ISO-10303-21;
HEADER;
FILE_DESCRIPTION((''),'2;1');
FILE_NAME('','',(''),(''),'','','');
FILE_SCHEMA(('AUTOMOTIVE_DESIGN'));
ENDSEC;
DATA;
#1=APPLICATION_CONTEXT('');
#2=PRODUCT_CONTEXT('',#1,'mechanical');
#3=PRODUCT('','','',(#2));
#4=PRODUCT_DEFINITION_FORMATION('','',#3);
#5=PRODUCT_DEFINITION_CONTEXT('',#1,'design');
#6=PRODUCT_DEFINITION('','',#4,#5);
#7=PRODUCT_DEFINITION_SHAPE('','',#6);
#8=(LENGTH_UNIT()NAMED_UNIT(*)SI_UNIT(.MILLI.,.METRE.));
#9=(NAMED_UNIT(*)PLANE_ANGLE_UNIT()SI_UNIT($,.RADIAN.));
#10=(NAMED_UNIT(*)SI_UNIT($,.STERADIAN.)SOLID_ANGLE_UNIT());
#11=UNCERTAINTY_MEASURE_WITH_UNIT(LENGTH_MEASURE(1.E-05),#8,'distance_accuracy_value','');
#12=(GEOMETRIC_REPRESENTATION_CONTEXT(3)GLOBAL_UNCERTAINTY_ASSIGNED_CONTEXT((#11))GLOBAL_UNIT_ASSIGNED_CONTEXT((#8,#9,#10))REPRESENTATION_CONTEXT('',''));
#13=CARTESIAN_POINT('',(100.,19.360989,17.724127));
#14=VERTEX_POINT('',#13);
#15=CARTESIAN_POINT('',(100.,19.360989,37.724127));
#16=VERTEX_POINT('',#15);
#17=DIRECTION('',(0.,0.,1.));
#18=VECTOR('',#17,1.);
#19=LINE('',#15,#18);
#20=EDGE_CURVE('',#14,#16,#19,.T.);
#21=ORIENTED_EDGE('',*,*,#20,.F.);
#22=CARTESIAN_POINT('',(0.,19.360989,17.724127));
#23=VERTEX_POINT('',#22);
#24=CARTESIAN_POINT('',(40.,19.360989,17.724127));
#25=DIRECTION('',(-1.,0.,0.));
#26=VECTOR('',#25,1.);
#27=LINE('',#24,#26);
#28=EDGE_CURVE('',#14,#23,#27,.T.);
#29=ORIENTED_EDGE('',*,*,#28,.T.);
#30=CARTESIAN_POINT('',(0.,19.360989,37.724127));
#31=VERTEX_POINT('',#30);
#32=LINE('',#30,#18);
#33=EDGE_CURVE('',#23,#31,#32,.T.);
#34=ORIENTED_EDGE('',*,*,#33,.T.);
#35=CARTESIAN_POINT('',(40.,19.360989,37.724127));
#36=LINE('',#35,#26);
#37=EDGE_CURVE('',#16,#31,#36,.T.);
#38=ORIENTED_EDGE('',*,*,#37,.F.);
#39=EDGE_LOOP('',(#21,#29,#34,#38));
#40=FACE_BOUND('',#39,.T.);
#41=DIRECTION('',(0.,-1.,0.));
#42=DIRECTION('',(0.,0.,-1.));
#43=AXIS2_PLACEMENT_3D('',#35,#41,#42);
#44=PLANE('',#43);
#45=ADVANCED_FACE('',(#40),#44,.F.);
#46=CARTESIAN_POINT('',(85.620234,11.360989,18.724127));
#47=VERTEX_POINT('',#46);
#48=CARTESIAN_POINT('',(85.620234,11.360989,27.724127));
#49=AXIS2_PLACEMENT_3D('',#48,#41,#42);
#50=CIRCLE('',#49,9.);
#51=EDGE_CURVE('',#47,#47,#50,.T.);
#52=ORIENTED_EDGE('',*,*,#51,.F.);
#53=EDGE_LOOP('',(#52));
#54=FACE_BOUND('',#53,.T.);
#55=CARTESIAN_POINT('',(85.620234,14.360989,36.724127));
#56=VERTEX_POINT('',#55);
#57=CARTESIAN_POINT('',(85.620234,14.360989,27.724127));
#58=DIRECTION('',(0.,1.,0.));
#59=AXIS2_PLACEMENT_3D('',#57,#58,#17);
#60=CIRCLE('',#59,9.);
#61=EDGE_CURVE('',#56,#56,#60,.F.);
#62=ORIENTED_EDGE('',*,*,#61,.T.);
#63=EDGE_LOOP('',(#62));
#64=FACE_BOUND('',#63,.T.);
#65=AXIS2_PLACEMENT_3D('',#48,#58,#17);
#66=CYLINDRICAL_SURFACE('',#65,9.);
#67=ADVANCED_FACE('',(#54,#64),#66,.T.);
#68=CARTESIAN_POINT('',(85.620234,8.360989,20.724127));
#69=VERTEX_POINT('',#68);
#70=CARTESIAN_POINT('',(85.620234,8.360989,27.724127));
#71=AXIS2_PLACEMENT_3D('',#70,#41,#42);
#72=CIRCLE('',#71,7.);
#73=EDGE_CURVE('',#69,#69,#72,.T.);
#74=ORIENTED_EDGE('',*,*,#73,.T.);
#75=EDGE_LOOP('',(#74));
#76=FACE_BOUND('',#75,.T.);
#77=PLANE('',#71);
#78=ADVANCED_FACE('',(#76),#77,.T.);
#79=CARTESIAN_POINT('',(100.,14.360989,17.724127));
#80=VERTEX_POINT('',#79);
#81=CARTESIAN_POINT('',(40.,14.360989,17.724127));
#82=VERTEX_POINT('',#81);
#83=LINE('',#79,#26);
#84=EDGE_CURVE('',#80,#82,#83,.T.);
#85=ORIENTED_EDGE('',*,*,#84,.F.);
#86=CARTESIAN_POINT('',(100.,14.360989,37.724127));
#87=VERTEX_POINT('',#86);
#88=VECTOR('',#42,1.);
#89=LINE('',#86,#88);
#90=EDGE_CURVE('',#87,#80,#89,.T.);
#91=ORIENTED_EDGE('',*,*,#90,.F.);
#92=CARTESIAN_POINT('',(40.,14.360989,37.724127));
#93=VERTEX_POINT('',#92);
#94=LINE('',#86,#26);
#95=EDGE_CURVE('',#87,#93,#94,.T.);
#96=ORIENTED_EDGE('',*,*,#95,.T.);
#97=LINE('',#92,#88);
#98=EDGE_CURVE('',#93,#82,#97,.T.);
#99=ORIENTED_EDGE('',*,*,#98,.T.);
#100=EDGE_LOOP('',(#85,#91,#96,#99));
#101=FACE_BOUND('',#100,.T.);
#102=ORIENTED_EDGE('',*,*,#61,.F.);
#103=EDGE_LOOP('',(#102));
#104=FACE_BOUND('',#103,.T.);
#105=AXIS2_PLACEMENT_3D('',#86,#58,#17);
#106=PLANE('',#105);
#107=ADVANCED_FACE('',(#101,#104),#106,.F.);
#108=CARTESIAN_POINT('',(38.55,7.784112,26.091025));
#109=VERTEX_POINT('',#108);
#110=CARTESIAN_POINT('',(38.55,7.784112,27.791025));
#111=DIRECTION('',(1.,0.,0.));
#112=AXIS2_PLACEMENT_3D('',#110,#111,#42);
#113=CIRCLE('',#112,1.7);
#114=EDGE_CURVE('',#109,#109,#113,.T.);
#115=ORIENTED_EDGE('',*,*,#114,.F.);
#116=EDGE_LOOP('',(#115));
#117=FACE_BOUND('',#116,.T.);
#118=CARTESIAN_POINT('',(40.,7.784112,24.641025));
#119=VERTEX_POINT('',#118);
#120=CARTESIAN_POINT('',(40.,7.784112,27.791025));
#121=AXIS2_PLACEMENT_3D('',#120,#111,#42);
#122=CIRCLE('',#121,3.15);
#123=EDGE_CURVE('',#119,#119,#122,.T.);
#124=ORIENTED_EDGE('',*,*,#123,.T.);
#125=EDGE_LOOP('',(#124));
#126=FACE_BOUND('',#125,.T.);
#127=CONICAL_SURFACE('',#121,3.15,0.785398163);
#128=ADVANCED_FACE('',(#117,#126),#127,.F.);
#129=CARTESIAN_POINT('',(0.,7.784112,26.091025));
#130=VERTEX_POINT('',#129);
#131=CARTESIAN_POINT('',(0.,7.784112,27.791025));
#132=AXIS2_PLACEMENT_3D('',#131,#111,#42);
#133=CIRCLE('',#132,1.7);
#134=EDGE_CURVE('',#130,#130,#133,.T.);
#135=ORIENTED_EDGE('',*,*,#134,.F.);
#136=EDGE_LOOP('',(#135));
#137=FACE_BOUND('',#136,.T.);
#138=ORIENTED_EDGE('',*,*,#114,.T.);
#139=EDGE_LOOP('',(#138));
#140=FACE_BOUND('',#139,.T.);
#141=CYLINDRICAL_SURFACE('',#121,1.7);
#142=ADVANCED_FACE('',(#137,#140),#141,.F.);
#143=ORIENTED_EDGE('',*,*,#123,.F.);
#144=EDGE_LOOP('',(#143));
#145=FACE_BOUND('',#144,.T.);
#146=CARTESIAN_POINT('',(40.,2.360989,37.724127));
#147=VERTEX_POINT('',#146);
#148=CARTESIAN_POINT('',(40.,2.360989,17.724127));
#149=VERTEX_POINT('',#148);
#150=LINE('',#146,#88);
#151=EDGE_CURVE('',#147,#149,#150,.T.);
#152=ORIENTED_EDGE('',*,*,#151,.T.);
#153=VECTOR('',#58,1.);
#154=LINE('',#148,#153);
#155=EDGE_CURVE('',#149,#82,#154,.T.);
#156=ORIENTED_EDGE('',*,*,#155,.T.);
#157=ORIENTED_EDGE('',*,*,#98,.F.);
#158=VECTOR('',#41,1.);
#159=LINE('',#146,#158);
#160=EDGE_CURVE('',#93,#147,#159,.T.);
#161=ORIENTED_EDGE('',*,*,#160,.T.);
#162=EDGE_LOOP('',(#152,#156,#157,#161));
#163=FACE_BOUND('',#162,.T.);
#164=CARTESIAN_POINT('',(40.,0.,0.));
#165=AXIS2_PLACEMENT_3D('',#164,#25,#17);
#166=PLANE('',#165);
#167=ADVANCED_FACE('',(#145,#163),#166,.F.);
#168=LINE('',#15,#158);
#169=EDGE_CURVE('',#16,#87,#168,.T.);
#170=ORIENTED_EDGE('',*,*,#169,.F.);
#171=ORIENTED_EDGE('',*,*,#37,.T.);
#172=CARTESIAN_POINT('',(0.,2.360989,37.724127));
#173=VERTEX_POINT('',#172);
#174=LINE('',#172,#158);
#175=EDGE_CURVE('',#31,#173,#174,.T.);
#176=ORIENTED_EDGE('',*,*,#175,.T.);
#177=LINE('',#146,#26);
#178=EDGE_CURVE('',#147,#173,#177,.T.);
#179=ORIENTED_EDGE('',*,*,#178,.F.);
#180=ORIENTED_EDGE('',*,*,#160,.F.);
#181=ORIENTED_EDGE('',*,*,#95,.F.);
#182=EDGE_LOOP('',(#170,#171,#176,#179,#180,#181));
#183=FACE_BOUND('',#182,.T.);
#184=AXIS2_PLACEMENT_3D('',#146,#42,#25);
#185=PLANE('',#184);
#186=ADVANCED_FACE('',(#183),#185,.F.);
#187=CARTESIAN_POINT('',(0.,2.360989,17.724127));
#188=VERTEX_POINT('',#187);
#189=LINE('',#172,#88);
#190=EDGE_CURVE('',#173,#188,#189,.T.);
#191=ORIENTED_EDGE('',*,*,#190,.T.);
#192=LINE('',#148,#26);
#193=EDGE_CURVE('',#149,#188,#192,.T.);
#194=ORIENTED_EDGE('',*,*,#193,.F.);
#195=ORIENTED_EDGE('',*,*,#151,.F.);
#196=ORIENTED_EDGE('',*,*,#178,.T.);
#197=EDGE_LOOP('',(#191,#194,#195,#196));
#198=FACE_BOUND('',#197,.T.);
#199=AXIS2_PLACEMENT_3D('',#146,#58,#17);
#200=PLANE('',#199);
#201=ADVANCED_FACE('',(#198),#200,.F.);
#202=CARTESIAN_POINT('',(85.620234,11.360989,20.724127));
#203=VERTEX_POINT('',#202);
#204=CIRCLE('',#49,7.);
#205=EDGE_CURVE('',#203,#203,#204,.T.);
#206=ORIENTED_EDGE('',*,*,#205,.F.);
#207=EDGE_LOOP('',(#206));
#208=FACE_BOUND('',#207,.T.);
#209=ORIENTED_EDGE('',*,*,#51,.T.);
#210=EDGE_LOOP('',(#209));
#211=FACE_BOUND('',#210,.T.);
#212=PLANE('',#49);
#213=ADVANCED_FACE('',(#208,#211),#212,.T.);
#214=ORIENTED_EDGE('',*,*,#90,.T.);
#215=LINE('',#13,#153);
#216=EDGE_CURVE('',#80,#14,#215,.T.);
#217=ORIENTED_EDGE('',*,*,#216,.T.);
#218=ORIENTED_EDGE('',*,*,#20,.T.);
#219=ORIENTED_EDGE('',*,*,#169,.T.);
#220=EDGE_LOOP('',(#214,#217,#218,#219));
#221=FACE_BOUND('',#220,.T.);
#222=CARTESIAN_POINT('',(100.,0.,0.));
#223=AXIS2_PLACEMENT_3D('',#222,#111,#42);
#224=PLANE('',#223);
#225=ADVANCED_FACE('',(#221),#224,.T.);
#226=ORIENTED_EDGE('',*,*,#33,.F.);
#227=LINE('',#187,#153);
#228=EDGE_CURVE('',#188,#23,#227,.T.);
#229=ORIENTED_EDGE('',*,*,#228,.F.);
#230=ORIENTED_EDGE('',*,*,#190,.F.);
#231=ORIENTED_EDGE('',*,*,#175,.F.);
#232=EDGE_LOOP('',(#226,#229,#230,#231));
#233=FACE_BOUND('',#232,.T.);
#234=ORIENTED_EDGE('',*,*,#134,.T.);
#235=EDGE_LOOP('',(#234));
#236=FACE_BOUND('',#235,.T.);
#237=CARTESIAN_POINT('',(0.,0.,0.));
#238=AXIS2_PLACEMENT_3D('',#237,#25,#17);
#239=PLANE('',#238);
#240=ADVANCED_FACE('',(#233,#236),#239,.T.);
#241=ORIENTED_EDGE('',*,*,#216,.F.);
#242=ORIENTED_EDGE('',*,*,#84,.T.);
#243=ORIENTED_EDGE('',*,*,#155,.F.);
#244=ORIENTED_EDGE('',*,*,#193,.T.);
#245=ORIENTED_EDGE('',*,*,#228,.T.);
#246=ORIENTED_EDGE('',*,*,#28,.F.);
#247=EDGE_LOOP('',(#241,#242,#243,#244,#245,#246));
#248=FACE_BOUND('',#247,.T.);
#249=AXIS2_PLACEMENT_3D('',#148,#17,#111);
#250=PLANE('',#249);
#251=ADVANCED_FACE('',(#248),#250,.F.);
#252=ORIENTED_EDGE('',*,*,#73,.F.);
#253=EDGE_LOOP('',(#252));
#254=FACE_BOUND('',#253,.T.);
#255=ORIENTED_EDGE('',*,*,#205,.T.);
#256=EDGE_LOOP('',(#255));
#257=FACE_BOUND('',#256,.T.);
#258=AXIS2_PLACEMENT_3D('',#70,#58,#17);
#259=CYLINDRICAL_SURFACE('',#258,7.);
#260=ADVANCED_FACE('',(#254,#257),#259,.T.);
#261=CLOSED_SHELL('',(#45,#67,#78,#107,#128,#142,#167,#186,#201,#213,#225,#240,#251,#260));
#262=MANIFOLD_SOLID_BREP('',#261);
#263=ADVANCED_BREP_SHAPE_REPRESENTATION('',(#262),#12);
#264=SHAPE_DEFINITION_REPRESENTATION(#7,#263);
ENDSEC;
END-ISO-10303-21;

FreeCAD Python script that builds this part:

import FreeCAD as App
import Part
import Sketcher
from FreeCAD import Vector
Q = App.Units.Quantity

doc = App.newDocument("Part")
body = doc.addObject("PartDesign::Body", "Body")

# Sketch on YZ plane
sketch1 = body.newObject("Sketcher::SketchObject", "Sketch")
sketch1.AttachmentSupport = (doc.getObject("YZ_Plane"), [""])
sketch1.MapMode = "FlatFace"
sketch1.addGeometry([
    Part.LineSegment(Vector(19, 38, 0), Vector(2, 38, 0)),
    Part.LineSegment(Vector(2, 38, 0), Vector(2, 18, 0)),
    Part.LineSegment(Vector(2, 18, 0), Vector(19, 18, 0)),
    Part.LineSegment(Vector(19, 18, 0), Vector(19, 38, 0)),
], False)
sketch1.addConstraint([
    Sketcher.Constraint("Coincident", 0, 2, 1, 1),
    Sketcher.Constraint("Coincident", 1, 2, 2, 1),
    Sketcher.Constraint("Coincident", 2, 2, 3, 1),
    Sketcher.Constraint("Coincident", 3, 2, 0, 1),
    Sketcher.Constraint("Horizontal", 0),
    Sketcher.Constraint("Vertical", 1),
    Sketcher.Constraint("Horizontal", 2),
    Sketcher.Constraint("Vertical", 3),
    Sketcher.Constraint("DistanceX", 0, 2, 0, 1, Q("17 mm")),
    Sketcher.Constraint("DistanceY", 1, 2, 1, 1, Q("20 mm")),
    Sketcher.Constraint("DistanceX", -1, 1, 0, 2, Q("2.360989 mm")),
    Sketcher.Constraint("DistanceY", -1, 1, 0, 2, Q("37.724127 mm")),
])
pad1 = body.newObject("PartDesign::Pad", "Pad")
pad1.Profile = sketch1
pad1.Length = 40

# Sketch on YZ plane
sketch2 = body.newObject("Sketcher::SketchObject", "Sketch001")
sketch2.AttachmentSupport = (doc.getObject("YZ_Plane"), [""])
sketch2.MapMode = "FlatFace"
sketch2.AttachmentOffset = App.Placement(Vector(0, 0, 40), App.Rotation())
sketch2.addGeometry([
    Part.LineSegment(Vector(19, 38, 0), Vector(14, 38, 0)),
    Part.LineSegment(Vector(14, 38, 0), Vector(14, 18, 0)),
    Part.LineSegment(Vector(14, 18, 0), Vector(19, 18, 0)),
    Part.LineSegment(Vector(19, 18, 0), Vector(19, 38, 0)),
], False)
sketch2.addConstraint([
    Sketcher.Constraint("Coincident", 0, 2, 1, 1),
    Sketcher.Constraint("Coincident", 1, 2, 2, 1),
    Sketcher.Constraint("Coincident", 2, 2, 3, 1),
    Sketcher.Constraint("Coincident", 3, 2, 0, 1),
    Sketcher.Constraint("Horizontal", 0),
    Sketcher.Constraint("Vertical", 1),
    Sketcher.Constraint("Horizontal", 2),
    Sketcher.Constraint("Vertical", 3),
    Sketcher.Constraint("DistanceX", 0, 2, 0, 1, Q("5 mm")),
    Sketcher.Constraint("DistanceY", 1, 2, 1, 1, Q("20 mm")),
    Sketcher.Constraint("DistanceX", -1, 1, 0, 2, Q("14.360989 mm")),
    Sketcher.Constraint("DistanceY", -1, 1, 0, 2, Q("37.724127 mm")),
])
pad2 = body.newObject("PartDesign::Pad", "Pad001")
pad2.Profile = sketch2
pad2.Length = 60

# Sketch on XZ plane
sketch3 = body.newObject("Sketcher::SketchObject", "Sketch002")
sketch3.AttachmentSupport = (doc.getObject("XZ_Plane"), [""])
sketch3.MapMode = "FlatFace"
sketch3.AttachmentOffset = App.Placement(Vector(0, 0, -14.360989), App.Rotation())
sketch3.addGeometry(Part.Circle(Vector(86, 28, 0), Vector(0, 0, 1), 9), False)
sketch3.addConstraint([
    Sketcher.Constraint("Diameter", 0, Q("18 mm")),
    Sketcher.Constraint("DistanceX", -1, 1, 0, 3, Q("85.620234 mm")),
    Sketcher.Constraint("DistanceY", -1, 1, 0, 3, Q("27.724127 mm")),
])
pad3 = body.newObject("PartDesign::Pad", "Pad002")
pad3.Profile = sketch3
pad3.Length = 3

# Sketch on XZ plane
sketch4 = body.newObject("Sketcher::SketchObject", "Sketch003")
sketch4.AttachmentSupport = (doc.getObject("XZ_Plane"), [""])
sketch4.MapMode = "FlatFace"
sketch4.AttachmentOffset = App.Placement(Vector(0, 0, -11.360989), App.Rotation())
sketch4.addGeometry(Part.Circle(Vector(86, 28, 0), Vector(0, 0, 1), 7), False)
sketch4.addConstraint([
    Sketcher.Constraint("Diameter", 0, Q("14 mm")),
    Sketcher.Constraint("DistanceX", -1, 1, 0, 3, Q("85.620234 mm")),
    Sketcher.Constraint("DistanceY", -1, 1, 0, 3, Q("27.724127 mm")),
])
pad4 = body.newObject("PartDesign::Pad", "Pad003")
pad4.Profile = sketch4
pad4.Length = 3

# Sketch on XZ plane
sketch5 = body.newObject("Sketcher::SketchObject", "Sketch004")
sketch5.AttachmentSupport = (doc.getObject("XZ_Plane"), [""])
sketch5.MapMode = "FlatFace"
sketch5.AttachmentOffset = App.Placement(Vector(0, 0, -7.784112), App.Rotation())
sketch5.addGeometry([
    Part.LineSegment(Vector(0, 27.8, 0), Vector(40, 27.8, 0)),  # 0
    Part.LineSegment(Vector(40, 27.8, 0), Vector(40, 24.6, 0)),  # 1
    Part.LineSegment(Vector(40, 24.6, 0), Vector(38.5, 26.1, 0)),  # 2
    Part.LineSegment(Vector(38.5, 26.1, 0), Vector(0, 26.1, 0)),  # 3
    Part.LineSegment(Vector(0, 26.1, 0), Vector(0, 27.8, 0)),  # 4
], False)
sketch5.addGeometry(Part.LineSegment(Vector(40, 27.8, 0), Vector(0, 27.8, 0)), True)  # axis
sketch5.addConstraint([
    Sketcher.Constraint("Coincident", 0, 2, 1, 1),
    Sketcher.Constraint("Coincident", 1, 2, 2, 1),
    Sketcher.Constraint("Coincident", 2, 2, 3, 1),
    Sketcher.Constraint("Coincident", 3, 2, 4, 1),
    Sketcher.Constraint("Coincident", 4, 2, 0, 1),
    Sketcher.Constraint("Horizontal", 0),
    Sketcher.Constraint("Vertical", 1),
    Sketcher.Constraint("Horizontal", 3),
    Sketcher.Constraint("Vertical", 4),
    Sketcher.Constraint("Horizontal", 5),
    Sketcher.Constraint("Coincident", 5, 1, 0, 2),
    Sketcher.Constraint("PointOnObject", 3, 2, -2),
    Sketcher.Constraint("PointOnObject", 5, 2, -2),
    Sketcher.Constraint("DistanceX", 0, 1, 0, 2, Q("40 mm")),
    Sketcher.Constraint("Angle", 2, Q("135 deg")),
    Sketcher.Constraint("DistanceY", 4, 1, 4, 2, Q("1.7 mm")),
    Sketcher.Constraint("DistanceX", 3, 2, 3, 1, Q("38.55 mm")),
    Sketcher.Constraint("DistanceY", -1, 1, 0, 2, Q("27.791025 mm")),
])
groove = body.newObject("PartDesign::Groove", "Groove")
groove.Profile = sketch5
groove.ReferenceAxis = (sketch5, ["Axis0"])
groove.Angle = 360

doc.recompute()
